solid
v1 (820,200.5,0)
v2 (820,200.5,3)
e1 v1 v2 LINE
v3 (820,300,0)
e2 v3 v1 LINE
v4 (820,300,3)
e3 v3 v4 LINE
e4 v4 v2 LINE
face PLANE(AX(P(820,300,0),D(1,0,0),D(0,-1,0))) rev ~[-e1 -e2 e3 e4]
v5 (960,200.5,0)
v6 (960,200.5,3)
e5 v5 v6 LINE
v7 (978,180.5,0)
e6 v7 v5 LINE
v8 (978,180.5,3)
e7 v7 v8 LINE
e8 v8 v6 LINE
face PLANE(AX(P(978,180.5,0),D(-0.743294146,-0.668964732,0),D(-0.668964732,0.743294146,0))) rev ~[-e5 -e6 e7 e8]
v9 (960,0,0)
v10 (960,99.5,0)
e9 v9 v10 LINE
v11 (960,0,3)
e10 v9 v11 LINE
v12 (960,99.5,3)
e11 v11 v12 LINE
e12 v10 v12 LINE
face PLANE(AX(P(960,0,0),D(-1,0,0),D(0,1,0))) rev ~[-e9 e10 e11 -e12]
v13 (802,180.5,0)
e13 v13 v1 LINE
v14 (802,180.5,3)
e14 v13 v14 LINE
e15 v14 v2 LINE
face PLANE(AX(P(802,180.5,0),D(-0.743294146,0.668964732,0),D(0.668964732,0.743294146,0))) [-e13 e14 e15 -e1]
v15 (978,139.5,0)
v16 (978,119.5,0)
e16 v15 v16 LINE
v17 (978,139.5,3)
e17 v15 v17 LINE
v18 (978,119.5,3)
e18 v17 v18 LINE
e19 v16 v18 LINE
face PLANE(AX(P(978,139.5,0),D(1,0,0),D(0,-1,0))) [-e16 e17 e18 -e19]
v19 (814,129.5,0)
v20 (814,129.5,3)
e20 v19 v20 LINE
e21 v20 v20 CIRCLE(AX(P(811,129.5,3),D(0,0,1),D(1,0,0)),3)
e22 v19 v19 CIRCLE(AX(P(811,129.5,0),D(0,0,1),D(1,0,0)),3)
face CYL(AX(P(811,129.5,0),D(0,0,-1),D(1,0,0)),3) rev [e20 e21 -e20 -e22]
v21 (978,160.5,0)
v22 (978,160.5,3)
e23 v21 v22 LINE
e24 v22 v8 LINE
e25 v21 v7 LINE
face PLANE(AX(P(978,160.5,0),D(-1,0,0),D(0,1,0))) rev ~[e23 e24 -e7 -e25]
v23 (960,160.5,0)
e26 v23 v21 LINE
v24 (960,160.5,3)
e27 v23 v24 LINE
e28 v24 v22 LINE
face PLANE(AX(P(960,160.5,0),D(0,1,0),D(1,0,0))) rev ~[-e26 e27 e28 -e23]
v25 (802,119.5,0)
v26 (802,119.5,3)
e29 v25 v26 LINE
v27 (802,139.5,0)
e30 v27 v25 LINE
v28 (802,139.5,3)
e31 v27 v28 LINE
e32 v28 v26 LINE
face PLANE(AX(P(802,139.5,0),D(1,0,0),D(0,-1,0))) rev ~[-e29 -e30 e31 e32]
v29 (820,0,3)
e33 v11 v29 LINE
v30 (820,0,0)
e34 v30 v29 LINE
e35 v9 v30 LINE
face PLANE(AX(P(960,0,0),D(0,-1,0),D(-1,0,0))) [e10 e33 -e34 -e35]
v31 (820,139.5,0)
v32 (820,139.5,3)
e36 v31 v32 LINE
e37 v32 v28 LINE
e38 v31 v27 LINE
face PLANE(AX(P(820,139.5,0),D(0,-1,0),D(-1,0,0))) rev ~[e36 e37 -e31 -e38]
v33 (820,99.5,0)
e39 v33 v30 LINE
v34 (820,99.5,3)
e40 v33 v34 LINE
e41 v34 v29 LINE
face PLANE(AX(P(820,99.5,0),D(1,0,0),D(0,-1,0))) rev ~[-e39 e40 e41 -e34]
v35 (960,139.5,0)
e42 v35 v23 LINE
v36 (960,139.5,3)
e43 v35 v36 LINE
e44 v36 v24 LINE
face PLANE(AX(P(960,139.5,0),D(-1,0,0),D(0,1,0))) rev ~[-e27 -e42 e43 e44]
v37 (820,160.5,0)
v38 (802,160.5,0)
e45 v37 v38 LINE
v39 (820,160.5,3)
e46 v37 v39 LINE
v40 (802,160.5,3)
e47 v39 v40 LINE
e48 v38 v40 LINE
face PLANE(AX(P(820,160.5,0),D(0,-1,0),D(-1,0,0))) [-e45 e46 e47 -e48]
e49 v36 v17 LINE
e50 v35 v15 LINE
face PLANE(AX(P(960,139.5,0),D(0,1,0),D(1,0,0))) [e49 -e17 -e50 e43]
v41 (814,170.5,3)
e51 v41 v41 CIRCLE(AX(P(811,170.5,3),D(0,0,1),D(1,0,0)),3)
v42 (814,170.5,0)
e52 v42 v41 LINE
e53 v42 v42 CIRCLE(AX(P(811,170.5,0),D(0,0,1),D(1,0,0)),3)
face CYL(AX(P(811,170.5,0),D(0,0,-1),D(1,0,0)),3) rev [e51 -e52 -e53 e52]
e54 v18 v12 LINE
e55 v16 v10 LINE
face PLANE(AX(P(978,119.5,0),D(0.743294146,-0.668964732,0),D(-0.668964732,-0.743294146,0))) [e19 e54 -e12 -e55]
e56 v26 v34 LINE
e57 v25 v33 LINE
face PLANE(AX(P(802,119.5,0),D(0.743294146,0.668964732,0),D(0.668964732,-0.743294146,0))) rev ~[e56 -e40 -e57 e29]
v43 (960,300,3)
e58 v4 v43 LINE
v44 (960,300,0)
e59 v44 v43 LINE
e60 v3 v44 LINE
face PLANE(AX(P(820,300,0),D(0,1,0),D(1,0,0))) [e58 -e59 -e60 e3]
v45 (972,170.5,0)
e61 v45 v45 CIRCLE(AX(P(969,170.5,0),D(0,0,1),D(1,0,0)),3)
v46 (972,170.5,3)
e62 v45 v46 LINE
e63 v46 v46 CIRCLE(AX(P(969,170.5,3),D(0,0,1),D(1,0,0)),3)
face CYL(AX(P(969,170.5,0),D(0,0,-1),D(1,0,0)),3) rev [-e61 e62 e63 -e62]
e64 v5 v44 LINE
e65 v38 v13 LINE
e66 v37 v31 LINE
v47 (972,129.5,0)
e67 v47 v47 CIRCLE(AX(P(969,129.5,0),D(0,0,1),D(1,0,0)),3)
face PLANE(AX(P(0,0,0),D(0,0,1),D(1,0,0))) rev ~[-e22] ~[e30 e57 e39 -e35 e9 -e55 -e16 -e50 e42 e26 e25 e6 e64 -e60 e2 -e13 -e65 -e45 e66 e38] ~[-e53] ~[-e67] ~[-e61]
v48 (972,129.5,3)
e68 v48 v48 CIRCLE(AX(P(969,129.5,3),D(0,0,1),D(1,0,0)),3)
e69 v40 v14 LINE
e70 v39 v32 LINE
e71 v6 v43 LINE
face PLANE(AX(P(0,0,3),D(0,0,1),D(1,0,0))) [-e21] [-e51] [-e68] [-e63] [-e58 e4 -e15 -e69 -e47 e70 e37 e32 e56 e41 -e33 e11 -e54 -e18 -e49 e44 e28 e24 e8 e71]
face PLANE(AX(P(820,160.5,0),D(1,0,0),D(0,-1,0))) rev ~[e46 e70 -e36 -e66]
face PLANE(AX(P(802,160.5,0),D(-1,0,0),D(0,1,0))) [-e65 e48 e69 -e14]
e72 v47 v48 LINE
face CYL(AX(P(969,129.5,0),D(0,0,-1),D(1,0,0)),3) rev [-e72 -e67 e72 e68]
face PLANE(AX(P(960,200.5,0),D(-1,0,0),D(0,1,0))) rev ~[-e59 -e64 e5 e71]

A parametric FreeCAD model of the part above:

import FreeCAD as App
import Part
import Sketcher
from FreeCAD import Vector


def add_polygon(sketch, points):
    """Adds a closed chain of lines whose ends are joined by coincident constraints."""
    first, n = sketch.GeometryCount, len(points)
    for a, b in zip(points, points[1:] + points[:1]):
        sketch.addGeometry(Part.LineSegment(App.Vector(*a, 0), App.Vector(*b, 0)), False)
    for i in range(n):
        sketch.addConstraint(Sketcher.Constraint("Coincident", first + i, 2, first + (i + 1) % n, 1))

doc = App.newDocument("Part")
body = doc.addObject("PartDesign::Body", "Body")

sketch1 = body.newObject("Sketcher::SketchObject", "Sketch")
sketch1.AttachmentSupport = (doc.getObject("XY_Plane"), [""])
sketch1.MapMode = "FlatFace"
add_polygon(sketch1, [(960, 300), (820, 300), (820, 200.5), (802, 180.5), (802, 160.5), (820, 160.5), (820, 139.5), (802, 139.5), (802, 119.5), (820, 99.5), (820, 0), (960, 0), (960, 99.5), (978, 119.5), (978, 139.5), (960, 139.5), (960, 160.5), (978, 160.5), (978, 180.5), (960, 200.5)])
sketch1.addGeometry(Part.Circle(Vector(811, 129.5, 0), Vector(0, 0, 1), 3), False)
sketch1.addGeometry(Part.Circle(Vector(811, 170.5, 0), Vector(0, 0, 1), 3), False)
sketch1.addGeometry(Part.Circle(Vector(969, 129.5, 0), Vector(0, 0, 1), 3), False)
sketch1.addGeometry(Part.Circle(Vector(969, 170.5, 0), Vector(0, 0, 1), 3), False)
sketch1.addConstraint([
    Sketcher.Constraint("Horizontal", 0),
    Sketcher.Constraint("Vertical", 1),
    Sketcher.Constraint("Vertical", 3),
    Sketcher.Constraint("Horizontal", 4),
    Sketcher.Constraint("Vertical", 5),
    Sketcher.Constraint("Horizontal", 6),
    Sketcher.Constraint("Vertical", 7),
    Sketcher.Constraint("Vertical", 9),
    Sketcher.Constraint("Horizontal", 10),
    Sketcher.Constraint("Vertical", 11),
    Sketcher.Constraint("Vertical", 13),
    Sketcher.Constraint("Horizontal", 14),
    Sketcher.Constraint("Vertical", 15),
    Sketcher.Constraint("Horizontal", 16),
    Sketcher.Constraint("Vertical", 17),
    Sketcher.Constraint("Vertical", 19),
    Sketcher.Constraint("Equal", 20, 21),
    Sketcher.Constraint("Equal", 21, 22),
    Sketcher.Constraint("Equal", 22, 23),
    Sketcher.Constraint("PointOnObject", 9, 2, -1),
    Sketcher.Constraint("Parallel", 2, 12),
    Sketcher.Constraint("Parallel", 8, 18),
    Sketcher.Constraint("Horizontal", 20, 3, 22, 3),
    Sketcher.Constraint("Horizontal", 21, 3, 23, 3),
    Sketcher.Constraint("Horizontal", 8, 2, 11, 2),
    Sketcher.Constraint("Horizontal", 7, 2, 12, 2),
    Sketcher.Constraint("Horizontal", 6, 2, 13, 2),
    Sketcher.Constraint("Horizontal", 4, 2, 15, 2),
    Sketcher.Constraint("Horizontal", 2, 2, 17, 2),
    Sketcher.Constraint("Horizontal", 1, 2, 18, 2),
    Sketcher.Constraint("Vertical", 20, 3, 21, 3),
    Sketcher.Constraint("Vertical", 22, 3, 23, 3),
    Sketcher.Constraint("Vertical", 1, 2, 4, 2),
    Sketcher.Constraint("Vertical", 3, 2, 6, 2),
    Sketcher.Constraint("Vertical", 5, 2, 8, 2),
    Sketcher.Constraint("Vertical", 11, 2, 14, 2),
    Sketcher.Constraint("Vertical", 13, 2, 16, 2),
    Sketcher.Constraint("Vertical", 15, 2, 18, 2),
    Sketcher.Constraint("Equal", 3, 7),
    Sketcher.Constraint("Equal", 1, 9),
    Sketcher.Constraint("Diameter", 20, 6.0),
    Sketcher.Constraint("DistanceX", 0, 2, 0, 1, 140.0),
    Sketcher.Constraint("DistanceX", 4, 1, 4, 2, 18.0),
    Sketcher.Constraint("DistanceY", 3, 2, 3, 1, 20.0),
    Sketcher.Constraint("DistanceY", -1, 1, 0, 2, 300.0),
    Sketcher.Constraint("DistanceY", 21, 3, 2, 2, 10.0),
    Sketcher.Constraint("DistanceY", 2, 2, 1, 2, 20.0),
    Sketcher.Constraint("DistanceY", 20, 3, 5, 2, 10.0),
    Sketcher.Constraint("DistanceY", 5, 2, 5, 1, 21.0),
    Sketcher.Constraint("DistanceX", -1, 1, 20, 3, 811.0),
    Sketcher.Constraint("DistanceX", -1, 1, 22, 3, 969.0),
    Sketcher.Constraint("DistanceX", -1, 1, 0, 2, 820.0),
])
pad1 = body.newObject("PartDesign::Pad", "Pad")
pad1.Profile = sketch1
pad1.Length = 3

doc.recompute()
